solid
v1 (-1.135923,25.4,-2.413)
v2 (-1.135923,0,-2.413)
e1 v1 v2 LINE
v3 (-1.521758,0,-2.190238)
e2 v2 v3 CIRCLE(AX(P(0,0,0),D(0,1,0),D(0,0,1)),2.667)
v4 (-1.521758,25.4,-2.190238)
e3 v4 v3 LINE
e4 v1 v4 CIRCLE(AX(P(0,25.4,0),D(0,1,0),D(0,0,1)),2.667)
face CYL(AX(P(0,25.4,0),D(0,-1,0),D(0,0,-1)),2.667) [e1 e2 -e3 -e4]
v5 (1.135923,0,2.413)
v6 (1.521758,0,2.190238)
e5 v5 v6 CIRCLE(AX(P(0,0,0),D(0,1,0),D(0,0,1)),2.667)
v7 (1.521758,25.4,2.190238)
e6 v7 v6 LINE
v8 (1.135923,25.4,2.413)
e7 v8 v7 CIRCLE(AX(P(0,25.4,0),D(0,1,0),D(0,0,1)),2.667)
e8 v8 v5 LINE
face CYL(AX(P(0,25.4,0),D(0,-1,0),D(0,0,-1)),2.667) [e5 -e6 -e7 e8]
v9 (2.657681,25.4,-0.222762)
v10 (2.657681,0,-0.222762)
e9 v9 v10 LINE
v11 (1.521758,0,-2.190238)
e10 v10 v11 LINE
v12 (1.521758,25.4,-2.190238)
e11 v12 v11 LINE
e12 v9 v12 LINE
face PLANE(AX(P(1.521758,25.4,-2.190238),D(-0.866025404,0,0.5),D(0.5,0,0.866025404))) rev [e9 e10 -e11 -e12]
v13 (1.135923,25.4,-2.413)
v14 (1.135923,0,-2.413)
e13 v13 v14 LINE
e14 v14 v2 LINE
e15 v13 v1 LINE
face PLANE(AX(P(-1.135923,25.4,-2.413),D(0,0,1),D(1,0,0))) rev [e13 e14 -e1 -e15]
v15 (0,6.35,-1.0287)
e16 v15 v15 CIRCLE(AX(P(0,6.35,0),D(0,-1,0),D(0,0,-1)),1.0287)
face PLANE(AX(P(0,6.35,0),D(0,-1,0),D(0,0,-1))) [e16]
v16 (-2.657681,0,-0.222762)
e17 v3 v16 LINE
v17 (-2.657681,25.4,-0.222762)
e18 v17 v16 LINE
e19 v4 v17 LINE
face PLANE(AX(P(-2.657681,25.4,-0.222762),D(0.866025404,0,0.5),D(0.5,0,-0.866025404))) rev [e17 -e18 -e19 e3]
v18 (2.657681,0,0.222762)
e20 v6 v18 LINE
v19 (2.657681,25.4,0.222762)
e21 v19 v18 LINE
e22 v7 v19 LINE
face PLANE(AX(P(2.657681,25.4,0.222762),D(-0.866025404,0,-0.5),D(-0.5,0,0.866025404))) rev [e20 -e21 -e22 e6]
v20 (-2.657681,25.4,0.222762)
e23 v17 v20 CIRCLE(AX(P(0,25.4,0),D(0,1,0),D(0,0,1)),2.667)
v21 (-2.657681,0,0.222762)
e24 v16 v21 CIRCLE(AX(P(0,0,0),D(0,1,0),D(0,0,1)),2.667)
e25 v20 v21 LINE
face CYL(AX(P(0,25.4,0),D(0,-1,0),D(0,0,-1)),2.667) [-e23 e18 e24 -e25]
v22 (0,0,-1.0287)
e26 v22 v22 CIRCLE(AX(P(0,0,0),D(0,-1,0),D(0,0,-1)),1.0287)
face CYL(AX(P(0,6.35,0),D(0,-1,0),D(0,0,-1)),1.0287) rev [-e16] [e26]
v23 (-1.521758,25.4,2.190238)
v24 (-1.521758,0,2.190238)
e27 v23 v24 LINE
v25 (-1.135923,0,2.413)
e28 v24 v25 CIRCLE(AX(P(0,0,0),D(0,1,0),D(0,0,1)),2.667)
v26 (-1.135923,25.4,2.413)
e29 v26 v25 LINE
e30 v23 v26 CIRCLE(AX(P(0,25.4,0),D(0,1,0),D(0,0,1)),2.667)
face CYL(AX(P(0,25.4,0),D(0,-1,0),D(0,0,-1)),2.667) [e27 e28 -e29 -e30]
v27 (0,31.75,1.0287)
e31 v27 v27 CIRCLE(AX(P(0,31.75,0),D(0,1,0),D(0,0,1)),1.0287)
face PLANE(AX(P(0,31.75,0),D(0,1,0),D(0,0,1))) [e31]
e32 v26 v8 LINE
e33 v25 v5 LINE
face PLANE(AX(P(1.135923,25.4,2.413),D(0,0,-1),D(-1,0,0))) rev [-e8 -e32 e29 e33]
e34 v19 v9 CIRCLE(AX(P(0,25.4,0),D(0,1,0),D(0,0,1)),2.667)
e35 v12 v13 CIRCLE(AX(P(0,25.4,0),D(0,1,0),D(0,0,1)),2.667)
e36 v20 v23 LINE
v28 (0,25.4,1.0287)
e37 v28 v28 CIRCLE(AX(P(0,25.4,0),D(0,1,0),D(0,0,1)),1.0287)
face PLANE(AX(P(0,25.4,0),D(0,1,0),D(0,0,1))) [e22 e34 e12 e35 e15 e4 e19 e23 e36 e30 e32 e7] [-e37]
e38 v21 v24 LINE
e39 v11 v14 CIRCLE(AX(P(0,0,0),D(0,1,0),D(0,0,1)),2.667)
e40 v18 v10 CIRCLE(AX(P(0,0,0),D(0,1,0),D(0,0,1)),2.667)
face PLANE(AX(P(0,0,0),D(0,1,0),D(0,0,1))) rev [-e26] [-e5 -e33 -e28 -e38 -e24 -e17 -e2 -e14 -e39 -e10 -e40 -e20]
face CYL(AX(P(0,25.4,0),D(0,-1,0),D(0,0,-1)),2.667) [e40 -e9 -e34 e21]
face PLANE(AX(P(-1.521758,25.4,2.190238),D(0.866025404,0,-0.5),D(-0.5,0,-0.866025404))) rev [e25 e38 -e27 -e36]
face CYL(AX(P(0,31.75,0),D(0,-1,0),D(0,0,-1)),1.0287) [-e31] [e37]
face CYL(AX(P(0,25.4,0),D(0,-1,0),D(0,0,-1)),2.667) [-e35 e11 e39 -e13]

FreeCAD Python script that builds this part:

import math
import FreeCAD as App
import Part
import Sketcher

V = App.Vector
Q = App.Units.Quantity

doc = App.newDocument("Part")
body = doc.addObject("PartDesign::Body", "Body")

sketch1 = body.newObject("Sketcher::SketchObject", "Sketch")
sketch1.AttachmentSupport = (doc.getObject("XZ_Plane"), [""])
sketch1.MapMode = "FlatFace"
sketch1.addGeometry(Part.LineSegment(V(1.14, -2.41, 0), V(-1.14, -2.41, 0)), False)
sketch1.addGeometry(Part.ArcOfCircle(Part.Circle(V(0, 0, 0), V(0, 0, 1), 2.67), math.radians(-124.79), math.radians(-115.21)), False)
sketch1.addGeometry(Part.LineSegment(V(-1.52, -2.19, 0), V(-2.66, -0.22, 0)), False)
sketch1.addGeometry(Part.ArcOfCircle(Part.Circle(V(0, 0, 0), V(0, 0, 1), 2.67), math.radians(175.21), math.radians(184.79)), False)
sketch1.addGeometry(Part.LineSegment(V(-2.66, 0.22, 0), V(-1.52, 2.19, 0)), False)
sketch1.addGeometry(Part.ArcOfCircle(Part.Circle(V(0, 0, 0), V(0, 0, 1), 2.67), math.radians(115.21), math.radians(124.79)), False)
sketch1.addGeometry(Part.LineSegment(V(-1.14, 2.41, 0), V(1.14, 2.41, 0)), False)
sketch1.addGeometry(Part.ArcOfCircle(Part.Circle(V(0, 0, 0), V(0, 0, 1), 2.67), math.radians(55.21), math.radians(64.79)), False)
sketch1.addGeometry(Part.LineSegment(V(1.52, 2.19, 0), V(2.66, 0.22, 0)), False)
sketch1.addGeometry(Part.ArcOfCircle(Part.Circle(V(0, 0, 0), V(0, 0, 1), 2.67), math.radians(-4.79), math.radians(4.79)), False)
sketch1.addGeometry(Part.LineSegment(V(2.66, -0.22, 0), V(1.52, -2.19, 0)), False)
sketch1.addGeometry(Part.ArcOfCircle(Part.Circle(V(0, 0, 0), V(0, 0, 1), 2.67), math.radians(-64.79), math.radians(-55.21)), False)
sketch1.addConstraint(Sketcher.Constraint("Coincident", 0, 2, 1, 2))
sketch1.addConstraint(Sketcher.Constraint("Coincident", 1, 1, 2, 1))
sketch1.addConstraint(Sketcher.Constraint("Coincident", 2, 2, 3, 2))
sketch1.addConstraint(Sketcher.Constraint("Coincident", 3, 1, 4, 1))
sketch1.addConstraint(Sketcher.Constraint("Coincident", 4, 2, 5, 2))
sketch1.addConstraint(Sketcher.Constraint("Coincident", 5, 1, 6, 1))
sketch1.addConstraint(Sketcher.Constraint("Coincident", 6, 2, 7, 2))
sketch1.addConstraint(Sketcher.Constraint("Coincident", 7, 1, 8, 1))
sketch1.addConstraint(Sketcher.Constraint("Coincident", 8, 2, 9, 2))
sketch1.addConstraint(Sketcher.Constraint("Coincident", 9, 1, 10, 1))
sketch1.addConstraint(Sketcher.Constraint("Coincident", 10, 2, 11, 2))
sketch1.addConstraint(Sketcher.Constraint("Coincident", 11, 1, 0, 1))
sketch1.addConstraint(Sketcher.Constraint("Horizontal", 0))
sketch1.addConstraint(Sketcher.Constraint("Horizontal", 6))
sketch1.addConstraint(Sketcher.Constraint("Coincident", 1, 3, -1, 1))
sketch1.addConstraint(Sketcher.Constraint("Coincident", 3, 3, -1, 1))
sketch1.addConstraint(Sketcher.Constraint("Coincident", 5, 3, -1, 1))
sketch1.addConstraint(Sketcher.Constraint("Coincident", 7, 3, -1, 1))
sketch1.addConstraint(Sketcher.Constraint("Coincident", 9, 3, -1, 1))
sketch1.addConstraint(Sketcher.Constraint("Coincident", 11, 3, -1, 1))
sketch1.addConstraint(Sketcher.Constraint("Equal", 1, 3))
sketch1.addConstraint(Sketcher.Constraint("Equal", 3, 5))
sketch1.addConstraint(Sketcher.Constraint("Equal", 5, 7))
sketch1.addConstraint(Sketcher.Constraint("Equal", 7, 9))
sketch1.addConstraint(Sketcher.Constraint("Equal", 9, 11))
sketch1.addConstraint(Sketcher.Constraint("Parallel", 2, 8))
sketch1.addConstraint(Sketcher.Constraint("Parallel", 4, 10))
sketch1.addConstraint(Sketcher.Constraint("Horizontal", 4, 2, 7, 1))
sketch1.addConstraint(Sketcher.Constraint("Horizontal", 3, 1, 8, 2))
sketch1.addConstraint(Sketcher.Constraint("Horizontal", 2, 2, 9, 1))
sketch1.addConstraint(Sketcher.Constraint("Vertical", 2, 2, 3, 1))
sketch1.addConstraint(Sketcher.Constraint("Vertical", 0, 2, 5, 1))
sketch1.addConstraint(Sketcher.Constraint("Angle", 2, Q("120 deg")))
sketch1.addConstraint(Sketcher.Constraint("Radius", 1, Q("0.105 in")))
sketch1.addConstraint(Sketcher.Constraint("DistanceY", 0, 2, -1, 1, Q("0.095 in")))
sketch1.addConstraint(Sketcher.Constraint("DistanceY", 1, 1, 3, 1, Q("0.095 in")))
pad1 = body.newObject("PartDesign::Pad", "Pad")
pad1.Profile = sketch1
pad1.Length = Q("1 in")
pad1.Reversed = True

sketch2 = body.newObject("Sketcher::SketchObject", "Sketch001")
sketch2.AttachmentSupport = (doc.getObject("XZ_Plane"), [""])
sketch2.MapMode = "FlatFace"
sketch2.AttachmentOffset = App.Placement(V(0, 0, -1 * 25.4), App.Rotation())
sketch2.addGeometry(Part.Circle(V(0, 0, 0), V(0, 0, 1), 1), False)
sketch2.addConstraint(Sketcher.Constraint("Coincident", 0, 3, -1, 1))
sketch2.addConstraint(Sketcher.Constraint("Diameter", 0, Q("0.081 in")))
pad2 = body.newObject("PartDesign::Pad", "Pad001")
pad2.Profile = sketch2
pad2.Length = Q("0.25 in")
pad2.Reversed = True

sketch3 = body.newObject("Sketcher::SketchObject", "Sketch002")
sketch3.AttachmentSupport = (doc.getObject("XZ_Plane"), [""])
sketch3.MapMode = "FlatFace"
sketch3.addGeometry(Part.Circle(V(0, 0, 0), V(0, 0, 1), 1), False)
sketch3.addConstraint(Sketcher.Constraint("Coincident", 0, 3, -1, 1))
sketch3.addConstraint(Sketcher.Constraint("Diameter", 0, Q("0.081 in")))
pocket1 = body.newObject("PartDesign::Pocket", "Pocket")
pocket1.Profile = sketch3
pocket1.Length = Q("0.25 in")

doc.recompute()
